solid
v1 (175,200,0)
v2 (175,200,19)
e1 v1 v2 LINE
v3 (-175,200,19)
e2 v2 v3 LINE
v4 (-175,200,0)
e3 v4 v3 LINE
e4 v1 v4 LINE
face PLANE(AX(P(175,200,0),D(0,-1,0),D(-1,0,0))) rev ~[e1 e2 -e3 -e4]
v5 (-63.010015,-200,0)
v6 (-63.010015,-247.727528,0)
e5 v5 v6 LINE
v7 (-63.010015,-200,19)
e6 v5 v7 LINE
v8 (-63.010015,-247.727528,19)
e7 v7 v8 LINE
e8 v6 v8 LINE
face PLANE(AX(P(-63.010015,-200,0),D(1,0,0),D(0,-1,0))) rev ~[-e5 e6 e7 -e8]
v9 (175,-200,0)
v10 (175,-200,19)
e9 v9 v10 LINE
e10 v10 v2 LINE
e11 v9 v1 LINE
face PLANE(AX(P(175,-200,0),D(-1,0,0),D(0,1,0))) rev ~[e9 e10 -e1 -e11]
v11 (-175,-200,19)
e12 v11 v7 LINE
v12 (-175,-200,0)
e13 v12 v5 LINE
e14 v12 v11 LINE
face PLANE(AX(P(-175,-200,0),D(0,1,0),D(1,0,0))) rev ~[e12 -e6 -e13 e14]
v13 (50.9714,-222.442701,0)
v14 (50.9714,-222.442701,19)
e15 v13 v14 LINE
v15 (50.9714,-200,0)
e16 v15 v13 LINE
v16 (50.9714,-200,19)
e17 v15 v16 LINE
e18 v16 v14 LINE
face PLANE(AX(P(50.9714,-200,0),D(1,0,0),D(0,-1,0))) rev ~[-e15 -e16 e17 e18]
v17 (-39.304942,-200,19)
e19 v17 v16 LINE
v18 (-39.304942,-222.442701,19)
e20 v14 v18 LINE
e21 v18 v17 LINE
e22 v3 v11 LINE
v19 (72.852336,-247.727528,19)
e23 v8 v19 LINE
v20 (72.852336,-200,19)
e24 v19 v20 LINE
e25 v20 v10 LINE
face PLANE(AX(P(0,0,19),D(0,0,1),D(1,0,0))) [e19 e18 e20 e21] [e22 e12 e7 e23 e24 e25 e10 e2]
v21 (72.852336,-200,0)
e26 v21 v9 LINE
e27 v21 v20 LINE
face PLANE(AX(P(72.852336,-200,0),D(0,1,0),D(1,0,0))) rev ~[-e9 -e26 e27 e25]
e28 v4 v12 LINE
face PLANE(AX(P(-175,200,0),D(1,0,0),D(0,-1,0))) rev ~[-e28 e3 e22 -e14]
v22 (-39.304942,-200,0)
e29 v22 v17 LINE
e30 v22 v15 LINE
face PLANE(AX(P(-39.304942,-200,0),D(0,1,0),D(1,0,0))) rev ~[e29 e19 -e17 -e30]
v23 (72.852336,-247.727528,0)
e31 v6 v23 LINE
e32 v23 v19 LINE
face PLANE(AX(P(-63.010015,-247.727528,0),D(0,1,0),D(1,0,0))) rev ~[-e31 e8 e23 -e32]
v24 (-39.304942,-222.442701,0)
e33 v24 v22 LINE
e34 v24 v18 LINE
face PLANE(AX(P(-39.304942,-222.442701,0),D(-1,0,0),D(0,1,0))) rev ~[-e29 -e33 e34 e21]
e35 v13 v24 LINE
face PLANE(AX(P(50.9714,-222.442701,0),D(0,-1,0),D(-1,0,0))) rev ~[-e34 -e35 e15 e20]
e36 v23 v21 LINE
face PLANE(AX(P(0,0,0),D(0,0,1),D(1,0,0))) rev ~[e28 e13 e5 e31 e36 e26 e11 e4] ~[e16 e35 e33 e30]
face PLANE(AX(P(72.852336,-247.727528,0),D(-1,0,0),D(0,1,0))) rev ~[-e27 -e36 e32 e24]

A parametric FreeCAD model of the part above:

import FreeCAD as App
import Part
import Sketcher
Q = App.Units.Quantity

doc = App.newDocument("Part")
body = doc.addObject("PartDesign::Body", "Body")

# Sketch on XY plane
sketch1 = body.newObject("Sketcher::SketchObject", "Sketch")
sketch1.AttachmentSupport = (doc.getObject("XY_Plane"), [""])
sketch1.MapMode = "FlatFace"
sketch1.addGeometry(Part.LineSegment(App.Vector(175, -200, 0), App.Vector(175, 200, 0)), False)
sketch1.addGeometry(Part.LineSegment(App.Vector(175, 200, 0), App.Vector(-175, 200, 0)), False)
sketch1.addGeometry(Part.LineSegment(App.Vector(-175, 200, 0), App.Vector(-175, -200, 0)), False)
sketch1.addGeometry(Part.LineSegment(App.Vector(-175, -200, 0), App.Vector(-63, -200, 0)), False)
sketch1.addGeometry(Part.LineSegment(App.Vector(-63, -200, 0), App.Vector(-63, -248, 0)), False)
sketch1.addGeometry(Part.LineSegment(App.Vector(-63, -248, 0), App.Vector(73, -248, 0)), False)
sketch1.addGeometry(Part.LineSegment(App.Vector(73, -248, 0), App.Vector(73, -200, 0)), False)
sketch1.addGeometry(Part.LineSegment(App.Vector(73, -200, 0), App.Vector(175, -200, 0)), False)
sketch1.addGeometry(Part.LineSegment(App.Vector(-39, -200, 0), App.Vector(51, -200, 0)), False)
sketch1.addGeometry(Part.LineSegment(App.Vector(51, -200, 0), App.Vector(51, -222, 0)), False)
sketch1.addGeometry(Part.LineSegment(App.Vector(51, -222, 0), App.Vector(-39, -222, 0)), False)
sketch1.addGeometry(Part.LineSegment(App.Vector(-39, -222, 0), App.Vector(-39, -200, 0)), False)
sketch1.addConstraint(Sketcher.Constraint("Coincident", 0, 2, 1, 1))
sketch1.addConstraint(Sketcher.Constraint("Coincident", 1, 2, 2, 1))
sketch1.addConstraint(Sketcher.Constraint("Coincident", 2, 2, 3, 1))
sketch1.addConstraint(Sketcher.Constraint("Coincident", 3, 2, 4, 1))
sketch1.addConstraint(Sketcher.Constraint("Coincident", 4, 2, 5, 1))
sketch1.addConstraint(Sketcher.Constraint("Coincident", 5, 2, 6, 1))
sketch1.addConstraint(Sketcher.Constraint("Coincident", 6, 2, 7, 1))
sketch1.addConstraint(Sketcher.Constraint("Coincident", 7, 2, 0, 1))
sketch1.addConstraint(Sketcher.Constraint("Coincident", 8, 2, 9, 1))
sketch1.addConstraint(Sketcher.Constraint("Coincident", 9, 2, 10, 1))
sketch1.addConstraint(Sketcher.Constraint("Coincident", 10, 2, 11, 1))
sketch1.addConstraint(Sketcher.Constraint("Coincident", 11, 2, 8, 1))
sketch1.addConstraint(Sketcher.Constraint("Vertical", 0))
sketch1.addConstraint(Sketcher.Constraint("Horizontal", 1))
sketch1.addConstraint(Sketcher.Constraint("Vertical", 2))
sketch1.addConstraint(Sketcher.Constraint("Horizontal", 3))
sketch1.addConstraint(Sketcher.Constraint("Vertical", 4))
sketch1.addConstraint(Sketcher.Constraint("Horizontal", 5))
sketch1.addConstraint(Sketcher.Constraint("Vertical", 6))
sketch1.addConstraint(Sketcher.Constraint("Horizontal", 7))
sketch1.addConstraint(Sketcher.Constraint("Horizontal", 8))
sketch1.addConstraint(Sketcher.Constraint("Vertical", 9))
sketch1.addConstraint(Sketcher.Constraint("Horizontal", 10))
sketch1.addConstraint(Sketcher.Constraint("Vertical", 11))
sketch1.addConstraint(Sketcher.Constraint("Symmetric", 0, 2, 2, 2, -1, 1))
sketch1.addConstraint(Sketcher.Constraint("Horizontal", 3, 2, 6, 2))
sketch1.addConstraint(Sketcher.Constraint("Horizontal", 7, 2, 8, 2))
sketch1.addConstraint(Sketcher.Constraint("DistanceX", 1, 2, 1, 1, Q("350 mm")))
sketch1.addConstraint(Sketcher.Constraint("DistanceY", 0, 1, 0, 2, Q("400 mm")))
sketch1.addConstraint(Sketcher.Constraint("DistanceY", 9, 2, 9, 1, Q("22.442701 mm")))
sketch1.addConstraint(Sketcher.Constraint("DistanceX", 5, 1, 5, 2, Q("135.862351 mm")))
sketch1.addConstraint(Sketcher.Constraint("DistanceX", 8, 1, 8, 2, Q("90.276342 mm")))
sketch1.addConstraint(Sketcher.Constraint("DistanceY", 4, 2, 4, 1, Q("47.727528 mm")))
sketch1.addConstraint(Sketcher.Constraint("DistanceX", -1, 1, 8, 2, Q("50.9714 mm")))
sketch1.addConstraint(Sketcher.Constraint("DistanceX", 3, 1, 3, 2, Q("111.989985 mm")))
pad1 = body.newObject("PartDesign::Pad", "Pad")
pad1.Profile = sketch1
pad1.Length = 19

doc.recompute()
